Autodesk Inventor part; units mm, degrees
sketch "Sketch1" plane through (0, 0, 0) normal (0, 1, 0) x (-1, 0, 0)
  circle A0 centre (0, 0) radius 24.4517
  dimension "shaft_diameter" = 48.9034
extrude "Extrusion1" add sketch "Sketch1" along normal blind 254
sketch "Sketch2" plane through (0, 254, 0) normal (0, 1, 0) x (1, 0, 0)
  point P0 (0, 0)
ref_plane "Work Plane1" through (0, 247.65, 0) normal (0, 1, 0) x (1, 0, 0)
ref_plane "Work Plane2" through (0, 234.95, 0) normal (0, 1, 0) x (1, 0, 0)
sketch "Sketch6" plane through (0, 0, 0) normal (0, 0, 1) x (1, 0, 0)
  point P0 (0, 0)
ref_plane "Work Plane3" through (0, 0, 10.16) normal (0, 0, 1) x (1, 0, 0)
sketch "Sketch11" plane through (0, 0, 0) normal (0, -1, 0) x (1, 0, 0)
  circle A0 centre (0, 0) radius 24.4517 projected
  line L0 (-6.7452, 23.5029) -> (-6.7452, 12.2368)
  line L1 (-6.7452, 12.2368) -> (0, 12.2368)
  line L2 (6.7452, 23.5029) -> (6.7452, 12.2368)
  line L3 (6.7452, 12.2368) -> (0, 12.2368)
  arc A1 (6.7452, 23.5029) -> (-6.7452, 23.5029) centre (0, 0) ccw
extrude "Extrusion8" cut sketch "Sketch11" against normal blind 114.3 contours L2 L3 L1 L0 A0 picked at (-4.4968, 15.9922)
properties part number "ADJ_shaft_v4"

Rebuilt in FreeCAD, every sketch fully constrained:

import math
import FreeCAD as App
import Part
import Sketcher

V = App.Vector
Q = App.Units.Quantity

doc = App.newDocument("Part")
body = doc.addObject("PartDesign::Body", "Body")

sketch1 = body.newObject("Sketcher::SketchObject", "Sketch")
sketch1.AttachmentSupport = (doc.getObject("XZ_Plane"), [""])
sketch1.MapMode = "FlatFace"
sketch1.addGeometry(Part.Circle(V(0, 0, 0), V(0, 0, 1), 24.4517), False)
sketch1.addConstraint([
    Sketcher.Constraint("Coincident", 0, 3, -1, 1),
    Sketcher.Constraint("Diameter", 0, Q("48.9034 mm")),
])
pad1 = body.newObject("PartDesign::Pad", "Pad")
pad1.Profile = sketch1
pad1.Length = Q("10 in")
pad1.Reversed = True

sketch2 = body.newObject("Sketcher::SketchObject", "Sketch001")
sketch2.AttachmentSupport = (doc.getObject("XZ_Plane"), [""])
sketch2.MapMode = "FlatFace"
sketch2.addGeometry([
    Part.LineSegment(V(6.7452, 12.2368, 0), V(6.7452, 23.5029, 0)),
    Part.ArcOfCircle(Part.Circle(V(0, 0, 0), V(0, 0, 1), 24.4517), math.radians(73.986819), math.radians(106.013181)),
    Part.LineSegment(V(-6.7452, 23.5029, 0), V(-6.7452, 12.2368, 0)),
    Part.LineSegment(V(-6.7452, 12.2368, 0), V(6.7452, 12.2368, 0)),
], False)
sketch2.addConstraint([
    Sketcher.Constraint("Coincident", 0, 2, 1, 1),
    Sketcher.Constraint("Coincident", 1, 2, 2, 1),
    Sketcher.Constraint("Coincident", 2, 2, 3, 1),
    Sketcher.Constraint("Coincident", 3, 2, 0, 1),
    Sketcher.Constraint("Vertical", 0),
    Sketcher.Constraint("Vertical", 2),
    Sketcher.Constraint("Horizontal", 3),
    Sketcher.Constraint("Coincident", 1, 3, -1, 1),
    Sketcher.Constraint("Horizontal", 0, 2, 1, 2),
    Sketcher.Constraint("Radius", 1, Q("24.4517 mm")),
    Sketcher.Constraint("DistanceX", 3, 1, 3, 2, Q("13.4904 mm")),
    Sketcher.Constraint("DistanceY", 0, 1, 0, 2, Q("11.266 mm")),
])
pocket1 = body.newObject("PartDesign::Pocket", "Pocket")
pocket1.Profile = sketch2
pocket1.Length = Q("4.5 in")

doc.recompute()
